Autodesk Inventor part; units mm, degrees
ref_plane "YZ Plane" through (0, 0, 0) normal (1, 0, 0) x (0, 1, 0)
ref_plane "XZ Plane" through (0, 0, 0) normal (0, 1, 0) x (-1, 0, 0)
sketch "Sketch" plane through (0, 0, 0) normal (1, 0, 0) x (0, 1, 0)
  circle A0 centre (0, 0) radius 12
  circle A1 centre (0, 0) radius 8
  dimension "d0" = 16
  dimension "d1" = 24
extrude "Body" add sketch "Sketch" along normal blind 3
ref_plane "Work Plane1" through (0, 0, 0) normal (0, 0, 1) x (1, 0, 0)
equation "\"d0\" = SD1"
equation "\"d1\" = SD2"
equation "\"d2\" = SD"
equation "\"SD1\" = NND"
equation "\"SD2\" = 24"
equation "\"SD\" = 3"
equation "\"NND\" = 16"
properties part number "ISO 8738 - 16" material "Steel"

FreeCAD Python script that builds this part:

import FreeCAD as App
import Part
import Sketcher
from FreeCAD import Vector
Q = App.Units.Quantity

doc = App.newDocument("Part")
body = doc.addObject("PartDesign::Body", "Body")

sketch1 = body.newObject("Sketcher::SketchObject", "Sketch")
sketch1.AttachmentSupport = (doc.getObject("YZ_Plane"), [""])
sketch1.MapMode = "FlatFace"
sketch1.addGeometry(Part.Circle(Vector(0, 0, 0), Vector(0, 0, 1), 12), False)
sketch1.addGeometry(Part.Circle(Vector(0, 0, 0), Vector(0, 0, 1), 8), False)
sketch1.addConstraint(Sketcher.Constraint("Coincident", 0, 3, -1, 1))
sketch1.addConstraint(Sketcher.Constraint("Coincident", 1, 3, -1, 1))
sketch1.addConstraint(Sketcher.Constraint("Diameter", 0, Q("24 mm")))
sketch1.addConstraint(Sketcher.Constraint("Diameter", 1, Q("16 mm")))
pad1 = body.newObject("PartDesign::Pad", "Pad")
pad1.Profile = sketch1
pad1.Length = 3

doc.recompute()
